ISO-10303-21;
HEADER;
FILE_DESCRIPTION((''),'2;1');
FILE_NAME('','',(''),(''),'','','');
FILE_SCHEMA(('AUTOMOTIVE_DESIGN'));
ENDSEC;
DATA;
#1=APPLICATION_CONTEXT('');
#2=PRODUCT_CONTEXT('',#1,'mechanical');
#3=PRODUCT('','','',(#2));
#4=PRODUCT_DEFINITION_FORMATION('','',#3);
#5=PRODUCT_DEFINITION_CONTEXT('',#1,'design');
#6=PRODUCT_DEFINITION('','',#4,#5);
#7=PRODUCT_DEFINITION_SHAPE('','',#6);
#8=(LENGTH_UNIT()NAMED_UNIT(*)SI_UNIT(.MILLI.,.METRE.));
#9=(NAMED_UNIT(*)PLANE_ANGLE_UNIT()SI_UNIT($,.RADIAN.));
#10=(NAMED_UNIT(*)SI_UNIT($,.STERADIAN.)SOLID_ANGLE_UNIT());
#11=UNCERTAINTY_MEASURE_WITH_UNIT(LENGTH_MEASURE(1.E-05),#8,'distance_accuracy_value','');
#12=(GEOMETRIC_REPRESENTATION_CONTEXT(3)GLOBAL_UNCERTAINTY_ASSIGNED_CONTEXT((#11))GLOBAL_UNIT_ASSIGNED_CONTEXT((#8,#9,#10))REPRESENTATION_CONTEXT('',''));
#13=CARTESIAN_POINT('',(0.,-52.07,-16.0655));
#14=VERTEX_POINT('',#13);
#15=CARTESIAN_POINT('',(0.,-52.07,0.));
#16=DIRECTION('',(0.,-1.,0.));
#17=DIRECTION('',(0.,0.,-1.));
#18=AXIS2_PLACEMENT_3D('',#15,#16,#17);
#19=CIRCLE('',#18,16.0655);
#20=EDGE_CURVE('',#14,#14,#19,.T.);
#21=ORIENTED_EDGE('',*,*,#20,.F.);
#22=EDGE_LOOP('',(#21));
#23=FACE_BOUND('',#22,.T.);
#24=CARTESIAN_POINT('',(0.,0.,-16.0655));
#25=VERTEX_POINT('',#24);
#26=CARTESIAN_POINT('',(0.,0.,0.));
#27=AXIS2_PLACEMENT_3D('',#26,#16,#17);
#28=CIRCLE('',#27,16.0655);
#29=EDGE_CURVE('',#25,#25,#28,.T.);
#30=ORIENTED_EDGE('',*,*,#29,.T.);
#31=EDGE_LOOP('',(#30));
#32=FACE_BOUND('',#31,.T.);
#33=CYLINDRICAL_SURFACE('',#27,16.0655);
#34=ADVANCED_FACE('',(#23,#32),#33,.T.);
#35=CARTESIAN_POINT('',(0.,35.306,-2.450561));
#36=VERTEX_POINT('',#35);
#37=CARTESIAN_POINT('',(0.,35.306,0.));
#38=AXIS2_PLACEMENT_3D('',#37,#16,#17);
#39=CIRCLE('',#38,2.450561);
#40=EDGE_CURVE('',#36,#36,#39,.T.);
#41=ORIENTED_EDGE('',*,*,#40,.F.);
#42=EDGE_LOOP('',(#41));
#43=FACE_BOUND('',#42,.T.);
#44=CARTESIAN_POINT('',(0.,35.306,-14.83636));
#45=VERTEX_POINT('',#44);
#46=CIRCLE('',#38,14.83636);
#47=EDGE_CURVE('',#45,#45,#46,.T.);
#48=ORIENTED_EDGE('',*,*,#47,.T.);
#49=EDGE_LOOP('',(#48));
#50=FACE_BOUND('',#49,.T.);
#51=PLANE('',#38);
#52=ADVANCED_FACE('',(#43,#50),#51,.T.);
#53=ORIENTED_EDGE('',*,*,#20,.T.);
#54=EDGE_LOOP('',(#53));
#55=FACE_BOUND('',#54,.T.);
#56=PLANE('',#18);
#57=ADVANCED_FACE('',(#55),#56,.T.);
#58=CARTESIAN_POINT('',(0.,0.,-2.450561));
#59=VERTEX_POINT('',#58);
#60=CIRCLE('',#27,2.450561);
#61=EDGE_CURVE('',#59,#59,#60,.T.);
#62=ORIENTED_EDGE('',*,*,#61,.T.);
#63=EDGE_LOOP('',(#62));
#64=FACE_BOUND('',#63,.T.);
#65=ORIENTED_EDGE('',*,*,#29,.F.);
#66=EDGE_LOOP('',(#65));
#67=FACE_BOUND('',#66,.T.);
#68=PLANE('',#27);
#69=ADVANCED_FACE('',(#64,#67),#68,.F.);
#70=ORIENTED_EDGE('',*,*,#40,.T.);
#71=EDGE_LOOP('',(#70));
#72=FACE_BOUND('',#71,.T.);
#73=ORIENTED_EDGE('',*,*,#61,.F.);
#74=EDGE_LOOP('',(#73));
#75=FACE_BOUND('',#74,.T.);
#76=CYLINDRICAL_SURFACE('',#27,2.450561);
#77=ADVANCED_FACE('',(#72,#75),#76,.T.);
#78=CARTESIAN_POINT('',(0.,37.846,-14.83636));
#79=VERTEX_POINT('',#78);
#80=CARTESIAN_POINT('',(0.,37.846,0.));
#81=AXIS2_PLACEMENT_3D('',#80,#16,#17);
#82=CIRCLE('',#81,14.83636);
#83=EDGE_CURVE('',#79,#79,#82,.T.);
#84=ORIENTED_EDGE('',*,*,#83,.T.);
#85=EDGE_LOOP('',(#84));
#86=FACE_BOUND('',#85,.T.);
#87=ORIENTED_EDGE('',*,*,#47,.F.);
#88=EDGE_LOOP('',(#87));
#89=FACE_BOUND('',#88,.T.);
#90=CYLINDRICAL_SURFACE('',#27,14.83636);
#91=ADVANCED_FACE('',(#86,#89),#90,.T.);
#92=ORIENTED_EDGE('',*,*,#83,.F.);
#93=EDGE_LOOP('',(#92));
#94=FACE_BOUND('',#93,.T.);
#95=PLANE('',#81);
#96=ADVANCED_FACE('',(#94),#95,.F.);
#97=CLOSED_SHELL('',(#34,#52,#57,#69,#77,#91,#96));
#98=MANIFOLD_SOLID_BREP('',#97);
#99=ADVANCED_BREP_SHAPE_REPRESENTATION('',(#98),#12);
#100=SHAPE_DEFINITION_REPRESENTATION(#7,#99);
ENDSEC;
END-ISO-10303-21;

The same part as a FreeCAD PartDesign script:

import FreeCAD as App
import Part
import Sketcher

V = App.Vector
Q = App.Units.Quantity

doc = App.newDocument("Part")
body = doc.addObject("PartDesign::Body", "Body")

sketch1 = body.newObject("Sketcher::SketchObject", "Sketch")
sketch1.AttachmentSupport = (doc.getObject("XY_Plane"), [""])
sketch1.MapMode = "FlatFace"
sketch1.addGeometry([
    Part.LineSegment(V(0, -52.1, 0), V(16.1, -52.1, 0)),
    Part.LineSegment(V(16.1, -52.1, 0), V(16.1, 0, 0)),
    Part.LineSegment(V(16.1, 0, 0), V(2.5, 0, 0)),
    Part.LineSegment(V(2.5, 0, 0), V(2.5, 35.3, 0)),
    Part.LineSegment(V(2.5, 35.3, 0), V(14.8, 35.3, 0)),
    Part.LineSegment(V(14.8, 35.3, 0), V(14.8, 37.8, 0)),
    Part.LineSegment(V(14.8, 37.8, 0), V(0, 37.8, 0)),
    Part.LineSegment(V(0, 37.8, 0), V(0, -52.1, 0)),
], False)
sketch1.addConstraint([
    Sketcher.Constraint("Coincident", 0, 2, 1, 1),
    Sketcher.Constraint("Coincident", 1, 2, 2, 1),
    Sketcher.Constraint("Coincident", 2, 2, 3, 1),
    Sketcher.Constraint("Coincident", 3, 2, 4, 1),
    Sketcher.Constraint("Coincident", 4, 2, 5, 1),
    Sketcher.Constraint("Coincident", 5, 2, 6, 1),
    Sketcher.Constraint("Coincident", 6, 2, 7, 1),
    Sketcher.Constraint("Coincident", 7, 2, 0, 1),
    Sketcher.Constraint("Horizontal", 0),
    Sketcher.Constraint("Vertical", 1),
    Sketcher.Constraint("Horizontal", 2),
    Sketcher.Constraint("Vertical", 3),
    Sketcher.Constraint("Horizontal", 4),
    Sketcher.Constraint("Vertical", 5),
    Sketcher.Constraint("Horizontal", 6),
    Sketcher.Constraint("Vertical", 7),
    Sketcher.Constraint("PointOnObject", 1, 2, -1),
    Sketcher.Constraint("PointOnObject", 6, 2, -2),
    Sketcher.Constraint("DistanceY", 5, 1, 5, 2, Q("0.1 in")),
    Sketcher.Constraint("DistanceY", 1, 1, 1, 2, Q("2.05 in")),
    Sketcher.Constraint("DistanceY", 3, 1, 3, 2, Q("1.39 in")),
    Sketcher.Constraint("DistanceX", 0, 1, 0, 2, Q("0.6325 in")),
    Sketcher.Constraint("DistanceX", 4, 1, 4, 2, Q("12.385798 mm")),
    Sketcher.Constraint("DistanceX", 2, 2, 2, 1, Q("13.614939 mm")),
])
revolution = body.newObject("PartDesign::Revolution", "Revolution")
revolution.Profile = sketch1
revolution.ReferenceAxis = (sketch1, ["V_Axis"])
revolution.Angle = 360

doc.recompute()
